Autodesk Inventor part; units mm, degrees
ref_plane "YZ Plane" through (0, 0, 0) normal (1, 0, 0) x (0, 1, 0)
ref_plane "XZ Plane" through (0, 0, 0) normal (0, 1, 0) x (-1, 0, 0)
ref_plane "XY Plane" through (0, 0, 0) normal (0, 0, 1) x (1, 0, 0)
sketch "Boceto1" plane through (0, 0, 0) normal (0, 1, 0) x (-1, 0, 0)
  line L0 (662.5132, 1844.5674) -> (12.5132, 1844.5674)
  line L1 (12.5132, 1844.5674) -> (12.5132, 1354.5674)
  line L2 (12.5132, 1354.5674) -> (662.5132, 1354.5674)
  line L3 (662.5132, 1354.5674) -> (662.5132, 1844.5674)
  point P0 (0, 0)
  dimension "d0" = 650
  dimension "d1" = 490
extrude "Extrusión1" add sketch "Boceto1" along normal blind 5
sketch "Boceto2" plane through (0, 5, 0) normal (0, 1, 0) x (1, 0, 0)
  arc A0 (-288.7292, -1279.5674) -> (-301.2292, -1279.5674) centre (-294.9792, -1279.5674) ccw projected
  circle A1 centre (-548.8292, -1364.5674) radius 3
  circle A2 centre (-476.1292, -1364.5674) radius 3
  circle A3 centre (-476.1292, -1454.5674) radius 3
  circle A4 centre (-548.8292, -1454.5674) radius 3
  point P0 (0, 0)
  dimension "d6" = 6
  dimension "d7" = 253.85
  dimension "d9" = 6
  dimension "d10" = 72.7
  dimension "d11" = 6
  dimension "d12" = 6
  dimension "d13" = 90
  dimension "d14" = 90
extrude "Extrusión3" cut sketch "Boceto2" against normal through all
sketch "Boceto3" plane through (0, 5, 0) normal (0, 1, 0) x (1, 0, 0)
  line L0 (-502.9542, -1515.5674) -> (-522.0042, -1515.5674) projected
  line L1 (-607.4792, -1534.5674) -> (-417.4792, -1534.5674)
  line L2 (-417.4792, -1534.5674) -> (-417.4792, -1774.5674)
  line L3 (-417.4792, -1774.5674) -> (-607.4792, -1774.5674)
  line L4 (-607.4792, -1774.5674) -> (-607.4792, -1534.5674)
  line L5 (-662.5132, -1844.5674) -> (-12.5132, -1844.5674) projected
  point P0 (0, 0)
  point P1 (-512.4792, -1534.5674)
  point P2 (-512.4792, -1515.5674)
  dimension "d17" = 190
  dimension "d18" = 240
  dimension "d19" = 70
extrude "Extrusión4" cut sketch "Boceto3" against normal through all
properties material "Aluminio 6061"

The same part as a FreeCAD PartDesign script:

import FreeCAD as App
import Part
import Sketcher

V = App.Vector

doc = App.newDocument("Part")
params = doc.addObject("Spreadsheet::Sheet", "Params")
for row, (alias, value) in enumerate([
    ("sketch1_width", "650 mm"),
    ("sketch1_height", "490 mm"),
    ("pad1_length", "5 mm"),
    ("sketch2_diameter", "6 mm"),
    ("sketch3_width", "190 mm"),
    ("sketch3_height", "240 mm"),
], start=1):
    params.set(f"A{row}", alias)
    params.set(f"B{row}", "=" + value)
    params.setAlias(f"B{row}", alias)

body = doc.addObject("PartDesign::Body", "Body")

sketch1 = doc.addObject("Sketcher::SketchObject", "Sketch")
body.addObject(sketch1)
sketch1.AttachmentSupport = (doc.XZ_Plane, [""])
sketch1.MapMode = "FlatFace"
sketch1.addGeometry(Part.LineSegment(V(-663, 1355, 0), V(-663, 1845, 0)), False)
sketch1.addGeometry(Part.LineSegment(V(-663, 1845, 0), V(-13, 1845, 0)), False)
sketch1.addGeometry(Part.LineSegment(V(-13, 1845, 0), V(-13, 1355, 0)), False)
sketch1.addGeometry(Part.LineSegment(V(-13, 1355, 0), V(-663, 1355, 0)), False)
sketch1.addConstraint(Sketcher.Constraint("Coincident", 0, 2, 1, 1))
sketch1.addConstraint(Sketcher.Constraint("Coincident", 1, 2, 2, 1))
sketch1.addConstraint(Sketcher.Constraint("Coincident", 2, 2, 3, 1))
sketch1.addConstraint(Sketcher.Constraint("Coincident", 3, 2, 0, 1))
sketch1.addConstraint(Sketcher.Constraint("Vertical", 0))
sketch1.addConstraint(Sketcher.Constraint("Horizontal", 1))
sketch1.addConstraint(Sketcher.Constraint("Vertical", 2))
sketch1.addConstraint(Sketcher.Constraint("Horizontal", 3))
sketch1.addConstraint(Sketcher.Constraint("DistanceX", 1, 1, 1, 2, 650.0))
sketch1.addConstraint(Sketcher.Constraint("DistanceY", 0, 1, 0, 2, 490.0))
sketch1.addConstraint(Sketcher.Constraint("DistanceX", 0, 2, -1, 1, 662.5132))
sketch1.addConstraint(Sketcher.Constraint("DistanceY", -1, 1, 0, 2, 1844.5674))
sketch1.setExpression("Constraints[8]", "Params.sketch1_width")
sketch1.setExpression("Constraints[9]", "Params.sketch1_height")
pad1 = doc.addObject("PartDesign::Pad", "Pad")
body.addObject(pad1)
pad1.Profile = sketch1
pad1.setExpression("Length", "Params.pad1_length")
pad1.Reversed = True

sketch2 = doc.addObject("Sketcher::SketchObject", "Sketch001")
body.addObject(sketch2)
sketch2.AttachmentSupport = (doc.XZ_Plane, [""])
sketch2.MapMode = "FlatFace"
sketch2.AttachmentOffset = App.Placement(V(0, 0, -5), App.Rotation())
sketch2.addGeometry(Part.Circle(V(-548.8, 1364.6, 0), V(0, 0, 1), 3), False)
sketch2.addGeometry(Part.Circle(V(-476.1, 1364.6, 0), V(0, 0, 1), 3), False)
sketch2.addGeometry(Part.Circle(V(-476.1, 1454.6, 0), V(0, 0, 1), 3), False)
sketch2.addGeometry(Part.Circle(V(-548.8, 1454.6, 0), V(0, 0, 1), 3), False)
sketch2.addConstraint(Sketcher.Constraint("Equal", 0, 1))
sketch2.addConstraint(Sketcher.Constraint("Equal", 1, 2))
sketch2.addConstraint(Sketcher.Constraint("Equal", 2, 3))
sketch2.addConstraint(Sketcher.Constraint("Horizontal", 0, 3, 1, 3))
sketch2.addConstraint(Sketcher.Constraint("Horizontal", 2, 3, 3, 3))
sketch2.addConstraint(Sketcher.Constraint("Vertical", 1, 3, 2, 3))
sketch2.addConstraint(Sketcher.Constraint("Vertical", 0, 3, 3, 3))
sketch2.addConstraint(Sketcher.Constraint("Diameter", 0, 6.0))
sketch2.addConstraint(Sketcher.Constraint("DistanceY", 1, 3, 2, 3, 90.0))
sketch2.addConstraint(Sketcher.Constraint("DistanceX", 0, 3, 1, 3, 72.7))
sketch2.addConstraint(Sketcher.Constraint("DistanceX", 0, 3, -1, 1, 548.8292))
sketch2.addConstraint(Sketcher.Constraint("DistanceY", -1, 1, 0, 3, 1364.5674))
sketch2.setExpression("Constraints[7]", "Params.sketch2_diameter")
pocket1 = doc.addObject("PartDesign::Pocket", "Pocket")
body.addObject(pocket1)
pocket1.Profile = sketch2
pocket1.Type = "ThroughAll"
pocket1.Reversed = True

sketch3 = doc.addObject("Sketcher::SketchObject", "Sketch002")
body.addObject(sketch3)
sketch3.AttachmentSupport = (doc.XZ_Plane, [""])
sketch3.MapMode = "FlatFace"
sketch3.AttachmentOffset = App.Placement(V(0, 0, -5), App.Rotation())
sketch3.addGeometry(Part.LineSegment(V(-417, 1535, 0), V(-607, 1535, 0)), False)
sketch3.addGeometry(Part.LineSegment(V(-607, 1535, 0), V(-607, 1775, 0)), False)
sketch3.addGeometry(Part.LineSegment(V(-607, 1775, 0), V(-417, 1775, 0)), False)
sketch3.addGeometry(Part.LineSegment(V(-417, 1775, 0), V(-417, 1535, 0)), False)
sketch3.addConstraint(Sketcher.Constraint("Coincident", 0, 2, 1, 1))
sketch3.addConstraint(Sketcher.Constraint("Coincident", 1, 2, 2, 1))
sketch3.addConstraint(Sketcher.Constraint("Coincident", 2, 2, 3, 1))
sketch3.addConstraint(Sketcher.Constraint("Coincident", 3, 2, 0, 1))
sketch3.addConstraint(Sketcher.Constraint("Horizontal", 0))
sketch3.addConstraint(Sketcher.Constraint("Vertical", 1))
sketch3.addConstraint(Sketcher.Constraint("Horizontal", 2))
sketch3.addConstraint(Sketcher.Constraint("Vertical", 3))
sketch3.addConstraint(Sketcher.Constraint("DistanceX", 0, 2, 0, 1, 190.0))
sketch3.addConstraint(Sketcher.Constraint("DistanceY", 1, 1, 1, 2, 240.0))
sketch3.addConstraint(Sketcher.Constraint("DistanceX", 0, 2, -1, 1, 607.4792))
sketch3.addConstraint(Sketcher.Constraint("DistanceY", -1, 1, 0, 2, 1534.5674))
sketch3.setExpression("Constraints[8]", "Params.sketch3_width")
sketch3.setExpression("Constraints[9]", "Params.sketch3_height")
pocket2 = doc.addObject("PartDesign::Pocket", "Pocket001")
body.addObject(pocket2)
pocket2.Profile = sketch3
pocket2.Type = "ThroughAll"
pocket2.Reversed = True

doc.recompute()
